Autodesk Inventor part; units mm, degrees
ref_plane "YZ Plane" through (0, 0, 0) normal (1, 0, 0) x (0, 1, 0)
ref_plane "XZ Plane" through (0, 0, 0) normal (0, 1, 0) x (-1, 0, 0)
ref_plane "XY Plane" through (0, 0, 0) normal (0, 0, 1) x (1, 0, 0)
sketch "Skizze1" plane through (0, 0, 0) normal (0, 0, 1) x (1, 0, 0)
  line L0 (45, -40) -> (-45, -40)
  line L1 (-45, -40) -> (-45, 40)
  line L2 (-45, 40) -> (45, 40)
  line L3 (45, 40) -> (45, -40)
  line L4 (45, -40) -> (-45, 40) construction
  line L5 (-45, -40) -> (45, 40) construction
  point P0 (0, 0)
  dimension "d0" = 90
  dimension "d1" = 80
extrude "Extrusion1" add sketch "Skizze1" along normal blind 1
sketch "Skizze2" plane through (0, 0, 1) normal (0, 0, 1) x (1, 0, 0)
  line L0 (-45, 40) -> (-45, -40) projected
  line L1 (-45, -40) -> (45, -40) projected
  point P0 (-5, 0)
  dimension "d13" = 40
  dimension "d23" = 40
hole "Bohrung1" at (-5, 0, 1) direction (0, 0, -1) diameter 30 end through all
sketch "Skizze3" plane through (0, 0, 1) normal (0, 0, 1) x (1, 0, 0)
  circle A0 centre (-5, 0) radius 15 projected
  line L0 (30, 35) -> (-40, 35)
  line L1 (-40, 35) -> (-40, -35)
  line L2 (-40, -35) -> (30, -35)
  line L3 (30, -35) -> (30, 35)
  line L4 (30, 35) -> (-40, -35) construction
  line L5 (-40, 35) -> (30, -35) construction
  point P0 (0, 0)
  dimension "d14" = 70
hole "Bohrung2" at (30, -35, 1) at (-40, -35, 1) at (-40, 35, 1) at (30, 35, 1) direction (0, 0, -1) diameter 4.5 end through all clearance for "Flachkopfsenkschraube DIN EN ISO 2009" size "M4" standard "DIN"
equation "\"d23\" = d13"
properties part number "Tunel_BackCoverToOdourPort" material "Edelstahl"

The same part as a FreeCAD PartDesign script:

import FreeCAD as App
import Part
import Sketcher
from FreeCAD import Vector


def add_polygon(sketch, points):
    """Adds a closed chain of lines whose ends are joined by coincident constraints."""
    first, n = sketch.GeometryCount, len(points)
    for a, b in zip(points, points[1:] + points[:1]):
        sketch.addGeometry(Part.LineSegment(App.Vector(*a, 0), App.Vector(*b, 0)), False)
    for i in range(n):
        sketch.addConstraint(Sketcher.Constraint("Coincident", first + i, 2, first + (i + 1) % n, 1))

doc = App.newDocument("Part")
body = doc.addObject("PartDesign::Body", "Body")

# Sketch on XY plane
sketch1 = body.newObject("Sketcher::SketchObject", "Sketch")
sketch1.AttachmentSupport = (doc.getObject("XY_Plane"), [""])
sketch1.MapMode = "FlatFace"
add_polygon(sketch1, [(-45, -40), (45, -40), (45, 40), (-45, 40)])  # lines 0-3
sketch1.addConstraint([
    Sketcher.Constraint("Horizontal", 0),
    Sketcher.Constraint("Vertical", 1),
    Sketcher.Constraint("Horizontal", 2),
    Sketcher.Constraint("Vertical", 3),
    Sketcher.Constraint("Symmetric", 0, 2, 2, 2, -1, 1),
    Sketcher.Constraint("DistanceX", 0, 1, 0, 2, 90.0),
    Sketcher.Constraint("DistanceY", 1, 1, 1, 2, 80.0),
])
pad1 = body.newObject("PartDesign::Pad", "Pad")
pad1.Profile = sketch1
pad1.Length = 1

# Sketch on XY plane
sketch2 = body.newObject("Sketcher::SketchObject", "Sketch001")
sketch2.AttachmentSupport = (doc.getObject("XY_Plane"), [""])
sketch2.MapMode = "FlatFace"
sketch2.AttachmentOffset = App.Placement(Vector(0, 0, 1), App.Rotation())
sketch2.addGeometry(Part.Circle(Vector(-5, 0, 0), Vector(0, 0, 1), 15), False)
sketch2.addConstraint([
    Sketcher.Constraint("PointOnObject", 0, 3, -1),
    Sketcher.Constraint("Diameter", 0, 30.0),
    Sketcher.Constraint("DistanceX", 0, 3, -1, 1, 5.0),
])
doc.recompute()
hole = body.newObject("PartDesign::Hole", "Hole")
hole.Profile = sketch2
hole.ThreadType = "None"
hole.Diameter = 30
hole.DepthType = "ThroughAll"

# Sketch on XY plane
sketch3 = body.newObject("Sketcher::SketchObject", "Sketch002")
sketch3.AttachmentSupport = (doc.getObject("XY_Plane"), [""])
sketch3.MapMode = "FlatFace"
sketch3.AttachmentOffset = App.Placement(Vector(0, 0, 1), App.Rotation())
sketch3.addGeometry([
    Part.Circle(Vector(30, -35, 0), Vector(0, 0, 1), 2.25),
    Part.Circle(Vector(-40, -35, 0), Vector(0, 0, 1), 2.25),
    Part.Circle(Vector(-40, 35, 0), Vector(0, 0, 1), 2.25),
    Part.Circle(Vector(30, 35, 0), Vector(0, 0, 1), 2.25),
], False)
sketch3.addConstraint([
    Sketcher.Constraint("Equal", 0, 1),
    Sketcher.Constraint("Equal", 1, 2),
    Sketcher.Constraint("Equal", 2, 3),
    Sketcher.Constraint("Symmetric", 1, 3, 2, 3, -1),
    Sketcher.Constraint("Symmetric", 0, 3, 3, 3, -1),
    Sketcher.Constraint("Horizontal", 0, 3, 1, 3),
    Sketcher.Constraint("Diameter", 0, 4.5),
    Sketcher.Constraint("DistanceX", -1, 1, 0, 3, 30.0),
    Sketcher.Constraint("DistanceY", 0, 3, -1, 1, 35.0),
    Sketcher.Constraint("DistanceX", 1, 3, -1, 1, 40.0),
])
doc.recompute()
hole2 = body.newObject("PartDesign::Hole", "Hole001")
hole2.Profile = sketch3
hole2.ThreadType = "None"
hole2.Diameter = 4.5
hole2.DepthType = "ThroughAll"

doc.recompute()
